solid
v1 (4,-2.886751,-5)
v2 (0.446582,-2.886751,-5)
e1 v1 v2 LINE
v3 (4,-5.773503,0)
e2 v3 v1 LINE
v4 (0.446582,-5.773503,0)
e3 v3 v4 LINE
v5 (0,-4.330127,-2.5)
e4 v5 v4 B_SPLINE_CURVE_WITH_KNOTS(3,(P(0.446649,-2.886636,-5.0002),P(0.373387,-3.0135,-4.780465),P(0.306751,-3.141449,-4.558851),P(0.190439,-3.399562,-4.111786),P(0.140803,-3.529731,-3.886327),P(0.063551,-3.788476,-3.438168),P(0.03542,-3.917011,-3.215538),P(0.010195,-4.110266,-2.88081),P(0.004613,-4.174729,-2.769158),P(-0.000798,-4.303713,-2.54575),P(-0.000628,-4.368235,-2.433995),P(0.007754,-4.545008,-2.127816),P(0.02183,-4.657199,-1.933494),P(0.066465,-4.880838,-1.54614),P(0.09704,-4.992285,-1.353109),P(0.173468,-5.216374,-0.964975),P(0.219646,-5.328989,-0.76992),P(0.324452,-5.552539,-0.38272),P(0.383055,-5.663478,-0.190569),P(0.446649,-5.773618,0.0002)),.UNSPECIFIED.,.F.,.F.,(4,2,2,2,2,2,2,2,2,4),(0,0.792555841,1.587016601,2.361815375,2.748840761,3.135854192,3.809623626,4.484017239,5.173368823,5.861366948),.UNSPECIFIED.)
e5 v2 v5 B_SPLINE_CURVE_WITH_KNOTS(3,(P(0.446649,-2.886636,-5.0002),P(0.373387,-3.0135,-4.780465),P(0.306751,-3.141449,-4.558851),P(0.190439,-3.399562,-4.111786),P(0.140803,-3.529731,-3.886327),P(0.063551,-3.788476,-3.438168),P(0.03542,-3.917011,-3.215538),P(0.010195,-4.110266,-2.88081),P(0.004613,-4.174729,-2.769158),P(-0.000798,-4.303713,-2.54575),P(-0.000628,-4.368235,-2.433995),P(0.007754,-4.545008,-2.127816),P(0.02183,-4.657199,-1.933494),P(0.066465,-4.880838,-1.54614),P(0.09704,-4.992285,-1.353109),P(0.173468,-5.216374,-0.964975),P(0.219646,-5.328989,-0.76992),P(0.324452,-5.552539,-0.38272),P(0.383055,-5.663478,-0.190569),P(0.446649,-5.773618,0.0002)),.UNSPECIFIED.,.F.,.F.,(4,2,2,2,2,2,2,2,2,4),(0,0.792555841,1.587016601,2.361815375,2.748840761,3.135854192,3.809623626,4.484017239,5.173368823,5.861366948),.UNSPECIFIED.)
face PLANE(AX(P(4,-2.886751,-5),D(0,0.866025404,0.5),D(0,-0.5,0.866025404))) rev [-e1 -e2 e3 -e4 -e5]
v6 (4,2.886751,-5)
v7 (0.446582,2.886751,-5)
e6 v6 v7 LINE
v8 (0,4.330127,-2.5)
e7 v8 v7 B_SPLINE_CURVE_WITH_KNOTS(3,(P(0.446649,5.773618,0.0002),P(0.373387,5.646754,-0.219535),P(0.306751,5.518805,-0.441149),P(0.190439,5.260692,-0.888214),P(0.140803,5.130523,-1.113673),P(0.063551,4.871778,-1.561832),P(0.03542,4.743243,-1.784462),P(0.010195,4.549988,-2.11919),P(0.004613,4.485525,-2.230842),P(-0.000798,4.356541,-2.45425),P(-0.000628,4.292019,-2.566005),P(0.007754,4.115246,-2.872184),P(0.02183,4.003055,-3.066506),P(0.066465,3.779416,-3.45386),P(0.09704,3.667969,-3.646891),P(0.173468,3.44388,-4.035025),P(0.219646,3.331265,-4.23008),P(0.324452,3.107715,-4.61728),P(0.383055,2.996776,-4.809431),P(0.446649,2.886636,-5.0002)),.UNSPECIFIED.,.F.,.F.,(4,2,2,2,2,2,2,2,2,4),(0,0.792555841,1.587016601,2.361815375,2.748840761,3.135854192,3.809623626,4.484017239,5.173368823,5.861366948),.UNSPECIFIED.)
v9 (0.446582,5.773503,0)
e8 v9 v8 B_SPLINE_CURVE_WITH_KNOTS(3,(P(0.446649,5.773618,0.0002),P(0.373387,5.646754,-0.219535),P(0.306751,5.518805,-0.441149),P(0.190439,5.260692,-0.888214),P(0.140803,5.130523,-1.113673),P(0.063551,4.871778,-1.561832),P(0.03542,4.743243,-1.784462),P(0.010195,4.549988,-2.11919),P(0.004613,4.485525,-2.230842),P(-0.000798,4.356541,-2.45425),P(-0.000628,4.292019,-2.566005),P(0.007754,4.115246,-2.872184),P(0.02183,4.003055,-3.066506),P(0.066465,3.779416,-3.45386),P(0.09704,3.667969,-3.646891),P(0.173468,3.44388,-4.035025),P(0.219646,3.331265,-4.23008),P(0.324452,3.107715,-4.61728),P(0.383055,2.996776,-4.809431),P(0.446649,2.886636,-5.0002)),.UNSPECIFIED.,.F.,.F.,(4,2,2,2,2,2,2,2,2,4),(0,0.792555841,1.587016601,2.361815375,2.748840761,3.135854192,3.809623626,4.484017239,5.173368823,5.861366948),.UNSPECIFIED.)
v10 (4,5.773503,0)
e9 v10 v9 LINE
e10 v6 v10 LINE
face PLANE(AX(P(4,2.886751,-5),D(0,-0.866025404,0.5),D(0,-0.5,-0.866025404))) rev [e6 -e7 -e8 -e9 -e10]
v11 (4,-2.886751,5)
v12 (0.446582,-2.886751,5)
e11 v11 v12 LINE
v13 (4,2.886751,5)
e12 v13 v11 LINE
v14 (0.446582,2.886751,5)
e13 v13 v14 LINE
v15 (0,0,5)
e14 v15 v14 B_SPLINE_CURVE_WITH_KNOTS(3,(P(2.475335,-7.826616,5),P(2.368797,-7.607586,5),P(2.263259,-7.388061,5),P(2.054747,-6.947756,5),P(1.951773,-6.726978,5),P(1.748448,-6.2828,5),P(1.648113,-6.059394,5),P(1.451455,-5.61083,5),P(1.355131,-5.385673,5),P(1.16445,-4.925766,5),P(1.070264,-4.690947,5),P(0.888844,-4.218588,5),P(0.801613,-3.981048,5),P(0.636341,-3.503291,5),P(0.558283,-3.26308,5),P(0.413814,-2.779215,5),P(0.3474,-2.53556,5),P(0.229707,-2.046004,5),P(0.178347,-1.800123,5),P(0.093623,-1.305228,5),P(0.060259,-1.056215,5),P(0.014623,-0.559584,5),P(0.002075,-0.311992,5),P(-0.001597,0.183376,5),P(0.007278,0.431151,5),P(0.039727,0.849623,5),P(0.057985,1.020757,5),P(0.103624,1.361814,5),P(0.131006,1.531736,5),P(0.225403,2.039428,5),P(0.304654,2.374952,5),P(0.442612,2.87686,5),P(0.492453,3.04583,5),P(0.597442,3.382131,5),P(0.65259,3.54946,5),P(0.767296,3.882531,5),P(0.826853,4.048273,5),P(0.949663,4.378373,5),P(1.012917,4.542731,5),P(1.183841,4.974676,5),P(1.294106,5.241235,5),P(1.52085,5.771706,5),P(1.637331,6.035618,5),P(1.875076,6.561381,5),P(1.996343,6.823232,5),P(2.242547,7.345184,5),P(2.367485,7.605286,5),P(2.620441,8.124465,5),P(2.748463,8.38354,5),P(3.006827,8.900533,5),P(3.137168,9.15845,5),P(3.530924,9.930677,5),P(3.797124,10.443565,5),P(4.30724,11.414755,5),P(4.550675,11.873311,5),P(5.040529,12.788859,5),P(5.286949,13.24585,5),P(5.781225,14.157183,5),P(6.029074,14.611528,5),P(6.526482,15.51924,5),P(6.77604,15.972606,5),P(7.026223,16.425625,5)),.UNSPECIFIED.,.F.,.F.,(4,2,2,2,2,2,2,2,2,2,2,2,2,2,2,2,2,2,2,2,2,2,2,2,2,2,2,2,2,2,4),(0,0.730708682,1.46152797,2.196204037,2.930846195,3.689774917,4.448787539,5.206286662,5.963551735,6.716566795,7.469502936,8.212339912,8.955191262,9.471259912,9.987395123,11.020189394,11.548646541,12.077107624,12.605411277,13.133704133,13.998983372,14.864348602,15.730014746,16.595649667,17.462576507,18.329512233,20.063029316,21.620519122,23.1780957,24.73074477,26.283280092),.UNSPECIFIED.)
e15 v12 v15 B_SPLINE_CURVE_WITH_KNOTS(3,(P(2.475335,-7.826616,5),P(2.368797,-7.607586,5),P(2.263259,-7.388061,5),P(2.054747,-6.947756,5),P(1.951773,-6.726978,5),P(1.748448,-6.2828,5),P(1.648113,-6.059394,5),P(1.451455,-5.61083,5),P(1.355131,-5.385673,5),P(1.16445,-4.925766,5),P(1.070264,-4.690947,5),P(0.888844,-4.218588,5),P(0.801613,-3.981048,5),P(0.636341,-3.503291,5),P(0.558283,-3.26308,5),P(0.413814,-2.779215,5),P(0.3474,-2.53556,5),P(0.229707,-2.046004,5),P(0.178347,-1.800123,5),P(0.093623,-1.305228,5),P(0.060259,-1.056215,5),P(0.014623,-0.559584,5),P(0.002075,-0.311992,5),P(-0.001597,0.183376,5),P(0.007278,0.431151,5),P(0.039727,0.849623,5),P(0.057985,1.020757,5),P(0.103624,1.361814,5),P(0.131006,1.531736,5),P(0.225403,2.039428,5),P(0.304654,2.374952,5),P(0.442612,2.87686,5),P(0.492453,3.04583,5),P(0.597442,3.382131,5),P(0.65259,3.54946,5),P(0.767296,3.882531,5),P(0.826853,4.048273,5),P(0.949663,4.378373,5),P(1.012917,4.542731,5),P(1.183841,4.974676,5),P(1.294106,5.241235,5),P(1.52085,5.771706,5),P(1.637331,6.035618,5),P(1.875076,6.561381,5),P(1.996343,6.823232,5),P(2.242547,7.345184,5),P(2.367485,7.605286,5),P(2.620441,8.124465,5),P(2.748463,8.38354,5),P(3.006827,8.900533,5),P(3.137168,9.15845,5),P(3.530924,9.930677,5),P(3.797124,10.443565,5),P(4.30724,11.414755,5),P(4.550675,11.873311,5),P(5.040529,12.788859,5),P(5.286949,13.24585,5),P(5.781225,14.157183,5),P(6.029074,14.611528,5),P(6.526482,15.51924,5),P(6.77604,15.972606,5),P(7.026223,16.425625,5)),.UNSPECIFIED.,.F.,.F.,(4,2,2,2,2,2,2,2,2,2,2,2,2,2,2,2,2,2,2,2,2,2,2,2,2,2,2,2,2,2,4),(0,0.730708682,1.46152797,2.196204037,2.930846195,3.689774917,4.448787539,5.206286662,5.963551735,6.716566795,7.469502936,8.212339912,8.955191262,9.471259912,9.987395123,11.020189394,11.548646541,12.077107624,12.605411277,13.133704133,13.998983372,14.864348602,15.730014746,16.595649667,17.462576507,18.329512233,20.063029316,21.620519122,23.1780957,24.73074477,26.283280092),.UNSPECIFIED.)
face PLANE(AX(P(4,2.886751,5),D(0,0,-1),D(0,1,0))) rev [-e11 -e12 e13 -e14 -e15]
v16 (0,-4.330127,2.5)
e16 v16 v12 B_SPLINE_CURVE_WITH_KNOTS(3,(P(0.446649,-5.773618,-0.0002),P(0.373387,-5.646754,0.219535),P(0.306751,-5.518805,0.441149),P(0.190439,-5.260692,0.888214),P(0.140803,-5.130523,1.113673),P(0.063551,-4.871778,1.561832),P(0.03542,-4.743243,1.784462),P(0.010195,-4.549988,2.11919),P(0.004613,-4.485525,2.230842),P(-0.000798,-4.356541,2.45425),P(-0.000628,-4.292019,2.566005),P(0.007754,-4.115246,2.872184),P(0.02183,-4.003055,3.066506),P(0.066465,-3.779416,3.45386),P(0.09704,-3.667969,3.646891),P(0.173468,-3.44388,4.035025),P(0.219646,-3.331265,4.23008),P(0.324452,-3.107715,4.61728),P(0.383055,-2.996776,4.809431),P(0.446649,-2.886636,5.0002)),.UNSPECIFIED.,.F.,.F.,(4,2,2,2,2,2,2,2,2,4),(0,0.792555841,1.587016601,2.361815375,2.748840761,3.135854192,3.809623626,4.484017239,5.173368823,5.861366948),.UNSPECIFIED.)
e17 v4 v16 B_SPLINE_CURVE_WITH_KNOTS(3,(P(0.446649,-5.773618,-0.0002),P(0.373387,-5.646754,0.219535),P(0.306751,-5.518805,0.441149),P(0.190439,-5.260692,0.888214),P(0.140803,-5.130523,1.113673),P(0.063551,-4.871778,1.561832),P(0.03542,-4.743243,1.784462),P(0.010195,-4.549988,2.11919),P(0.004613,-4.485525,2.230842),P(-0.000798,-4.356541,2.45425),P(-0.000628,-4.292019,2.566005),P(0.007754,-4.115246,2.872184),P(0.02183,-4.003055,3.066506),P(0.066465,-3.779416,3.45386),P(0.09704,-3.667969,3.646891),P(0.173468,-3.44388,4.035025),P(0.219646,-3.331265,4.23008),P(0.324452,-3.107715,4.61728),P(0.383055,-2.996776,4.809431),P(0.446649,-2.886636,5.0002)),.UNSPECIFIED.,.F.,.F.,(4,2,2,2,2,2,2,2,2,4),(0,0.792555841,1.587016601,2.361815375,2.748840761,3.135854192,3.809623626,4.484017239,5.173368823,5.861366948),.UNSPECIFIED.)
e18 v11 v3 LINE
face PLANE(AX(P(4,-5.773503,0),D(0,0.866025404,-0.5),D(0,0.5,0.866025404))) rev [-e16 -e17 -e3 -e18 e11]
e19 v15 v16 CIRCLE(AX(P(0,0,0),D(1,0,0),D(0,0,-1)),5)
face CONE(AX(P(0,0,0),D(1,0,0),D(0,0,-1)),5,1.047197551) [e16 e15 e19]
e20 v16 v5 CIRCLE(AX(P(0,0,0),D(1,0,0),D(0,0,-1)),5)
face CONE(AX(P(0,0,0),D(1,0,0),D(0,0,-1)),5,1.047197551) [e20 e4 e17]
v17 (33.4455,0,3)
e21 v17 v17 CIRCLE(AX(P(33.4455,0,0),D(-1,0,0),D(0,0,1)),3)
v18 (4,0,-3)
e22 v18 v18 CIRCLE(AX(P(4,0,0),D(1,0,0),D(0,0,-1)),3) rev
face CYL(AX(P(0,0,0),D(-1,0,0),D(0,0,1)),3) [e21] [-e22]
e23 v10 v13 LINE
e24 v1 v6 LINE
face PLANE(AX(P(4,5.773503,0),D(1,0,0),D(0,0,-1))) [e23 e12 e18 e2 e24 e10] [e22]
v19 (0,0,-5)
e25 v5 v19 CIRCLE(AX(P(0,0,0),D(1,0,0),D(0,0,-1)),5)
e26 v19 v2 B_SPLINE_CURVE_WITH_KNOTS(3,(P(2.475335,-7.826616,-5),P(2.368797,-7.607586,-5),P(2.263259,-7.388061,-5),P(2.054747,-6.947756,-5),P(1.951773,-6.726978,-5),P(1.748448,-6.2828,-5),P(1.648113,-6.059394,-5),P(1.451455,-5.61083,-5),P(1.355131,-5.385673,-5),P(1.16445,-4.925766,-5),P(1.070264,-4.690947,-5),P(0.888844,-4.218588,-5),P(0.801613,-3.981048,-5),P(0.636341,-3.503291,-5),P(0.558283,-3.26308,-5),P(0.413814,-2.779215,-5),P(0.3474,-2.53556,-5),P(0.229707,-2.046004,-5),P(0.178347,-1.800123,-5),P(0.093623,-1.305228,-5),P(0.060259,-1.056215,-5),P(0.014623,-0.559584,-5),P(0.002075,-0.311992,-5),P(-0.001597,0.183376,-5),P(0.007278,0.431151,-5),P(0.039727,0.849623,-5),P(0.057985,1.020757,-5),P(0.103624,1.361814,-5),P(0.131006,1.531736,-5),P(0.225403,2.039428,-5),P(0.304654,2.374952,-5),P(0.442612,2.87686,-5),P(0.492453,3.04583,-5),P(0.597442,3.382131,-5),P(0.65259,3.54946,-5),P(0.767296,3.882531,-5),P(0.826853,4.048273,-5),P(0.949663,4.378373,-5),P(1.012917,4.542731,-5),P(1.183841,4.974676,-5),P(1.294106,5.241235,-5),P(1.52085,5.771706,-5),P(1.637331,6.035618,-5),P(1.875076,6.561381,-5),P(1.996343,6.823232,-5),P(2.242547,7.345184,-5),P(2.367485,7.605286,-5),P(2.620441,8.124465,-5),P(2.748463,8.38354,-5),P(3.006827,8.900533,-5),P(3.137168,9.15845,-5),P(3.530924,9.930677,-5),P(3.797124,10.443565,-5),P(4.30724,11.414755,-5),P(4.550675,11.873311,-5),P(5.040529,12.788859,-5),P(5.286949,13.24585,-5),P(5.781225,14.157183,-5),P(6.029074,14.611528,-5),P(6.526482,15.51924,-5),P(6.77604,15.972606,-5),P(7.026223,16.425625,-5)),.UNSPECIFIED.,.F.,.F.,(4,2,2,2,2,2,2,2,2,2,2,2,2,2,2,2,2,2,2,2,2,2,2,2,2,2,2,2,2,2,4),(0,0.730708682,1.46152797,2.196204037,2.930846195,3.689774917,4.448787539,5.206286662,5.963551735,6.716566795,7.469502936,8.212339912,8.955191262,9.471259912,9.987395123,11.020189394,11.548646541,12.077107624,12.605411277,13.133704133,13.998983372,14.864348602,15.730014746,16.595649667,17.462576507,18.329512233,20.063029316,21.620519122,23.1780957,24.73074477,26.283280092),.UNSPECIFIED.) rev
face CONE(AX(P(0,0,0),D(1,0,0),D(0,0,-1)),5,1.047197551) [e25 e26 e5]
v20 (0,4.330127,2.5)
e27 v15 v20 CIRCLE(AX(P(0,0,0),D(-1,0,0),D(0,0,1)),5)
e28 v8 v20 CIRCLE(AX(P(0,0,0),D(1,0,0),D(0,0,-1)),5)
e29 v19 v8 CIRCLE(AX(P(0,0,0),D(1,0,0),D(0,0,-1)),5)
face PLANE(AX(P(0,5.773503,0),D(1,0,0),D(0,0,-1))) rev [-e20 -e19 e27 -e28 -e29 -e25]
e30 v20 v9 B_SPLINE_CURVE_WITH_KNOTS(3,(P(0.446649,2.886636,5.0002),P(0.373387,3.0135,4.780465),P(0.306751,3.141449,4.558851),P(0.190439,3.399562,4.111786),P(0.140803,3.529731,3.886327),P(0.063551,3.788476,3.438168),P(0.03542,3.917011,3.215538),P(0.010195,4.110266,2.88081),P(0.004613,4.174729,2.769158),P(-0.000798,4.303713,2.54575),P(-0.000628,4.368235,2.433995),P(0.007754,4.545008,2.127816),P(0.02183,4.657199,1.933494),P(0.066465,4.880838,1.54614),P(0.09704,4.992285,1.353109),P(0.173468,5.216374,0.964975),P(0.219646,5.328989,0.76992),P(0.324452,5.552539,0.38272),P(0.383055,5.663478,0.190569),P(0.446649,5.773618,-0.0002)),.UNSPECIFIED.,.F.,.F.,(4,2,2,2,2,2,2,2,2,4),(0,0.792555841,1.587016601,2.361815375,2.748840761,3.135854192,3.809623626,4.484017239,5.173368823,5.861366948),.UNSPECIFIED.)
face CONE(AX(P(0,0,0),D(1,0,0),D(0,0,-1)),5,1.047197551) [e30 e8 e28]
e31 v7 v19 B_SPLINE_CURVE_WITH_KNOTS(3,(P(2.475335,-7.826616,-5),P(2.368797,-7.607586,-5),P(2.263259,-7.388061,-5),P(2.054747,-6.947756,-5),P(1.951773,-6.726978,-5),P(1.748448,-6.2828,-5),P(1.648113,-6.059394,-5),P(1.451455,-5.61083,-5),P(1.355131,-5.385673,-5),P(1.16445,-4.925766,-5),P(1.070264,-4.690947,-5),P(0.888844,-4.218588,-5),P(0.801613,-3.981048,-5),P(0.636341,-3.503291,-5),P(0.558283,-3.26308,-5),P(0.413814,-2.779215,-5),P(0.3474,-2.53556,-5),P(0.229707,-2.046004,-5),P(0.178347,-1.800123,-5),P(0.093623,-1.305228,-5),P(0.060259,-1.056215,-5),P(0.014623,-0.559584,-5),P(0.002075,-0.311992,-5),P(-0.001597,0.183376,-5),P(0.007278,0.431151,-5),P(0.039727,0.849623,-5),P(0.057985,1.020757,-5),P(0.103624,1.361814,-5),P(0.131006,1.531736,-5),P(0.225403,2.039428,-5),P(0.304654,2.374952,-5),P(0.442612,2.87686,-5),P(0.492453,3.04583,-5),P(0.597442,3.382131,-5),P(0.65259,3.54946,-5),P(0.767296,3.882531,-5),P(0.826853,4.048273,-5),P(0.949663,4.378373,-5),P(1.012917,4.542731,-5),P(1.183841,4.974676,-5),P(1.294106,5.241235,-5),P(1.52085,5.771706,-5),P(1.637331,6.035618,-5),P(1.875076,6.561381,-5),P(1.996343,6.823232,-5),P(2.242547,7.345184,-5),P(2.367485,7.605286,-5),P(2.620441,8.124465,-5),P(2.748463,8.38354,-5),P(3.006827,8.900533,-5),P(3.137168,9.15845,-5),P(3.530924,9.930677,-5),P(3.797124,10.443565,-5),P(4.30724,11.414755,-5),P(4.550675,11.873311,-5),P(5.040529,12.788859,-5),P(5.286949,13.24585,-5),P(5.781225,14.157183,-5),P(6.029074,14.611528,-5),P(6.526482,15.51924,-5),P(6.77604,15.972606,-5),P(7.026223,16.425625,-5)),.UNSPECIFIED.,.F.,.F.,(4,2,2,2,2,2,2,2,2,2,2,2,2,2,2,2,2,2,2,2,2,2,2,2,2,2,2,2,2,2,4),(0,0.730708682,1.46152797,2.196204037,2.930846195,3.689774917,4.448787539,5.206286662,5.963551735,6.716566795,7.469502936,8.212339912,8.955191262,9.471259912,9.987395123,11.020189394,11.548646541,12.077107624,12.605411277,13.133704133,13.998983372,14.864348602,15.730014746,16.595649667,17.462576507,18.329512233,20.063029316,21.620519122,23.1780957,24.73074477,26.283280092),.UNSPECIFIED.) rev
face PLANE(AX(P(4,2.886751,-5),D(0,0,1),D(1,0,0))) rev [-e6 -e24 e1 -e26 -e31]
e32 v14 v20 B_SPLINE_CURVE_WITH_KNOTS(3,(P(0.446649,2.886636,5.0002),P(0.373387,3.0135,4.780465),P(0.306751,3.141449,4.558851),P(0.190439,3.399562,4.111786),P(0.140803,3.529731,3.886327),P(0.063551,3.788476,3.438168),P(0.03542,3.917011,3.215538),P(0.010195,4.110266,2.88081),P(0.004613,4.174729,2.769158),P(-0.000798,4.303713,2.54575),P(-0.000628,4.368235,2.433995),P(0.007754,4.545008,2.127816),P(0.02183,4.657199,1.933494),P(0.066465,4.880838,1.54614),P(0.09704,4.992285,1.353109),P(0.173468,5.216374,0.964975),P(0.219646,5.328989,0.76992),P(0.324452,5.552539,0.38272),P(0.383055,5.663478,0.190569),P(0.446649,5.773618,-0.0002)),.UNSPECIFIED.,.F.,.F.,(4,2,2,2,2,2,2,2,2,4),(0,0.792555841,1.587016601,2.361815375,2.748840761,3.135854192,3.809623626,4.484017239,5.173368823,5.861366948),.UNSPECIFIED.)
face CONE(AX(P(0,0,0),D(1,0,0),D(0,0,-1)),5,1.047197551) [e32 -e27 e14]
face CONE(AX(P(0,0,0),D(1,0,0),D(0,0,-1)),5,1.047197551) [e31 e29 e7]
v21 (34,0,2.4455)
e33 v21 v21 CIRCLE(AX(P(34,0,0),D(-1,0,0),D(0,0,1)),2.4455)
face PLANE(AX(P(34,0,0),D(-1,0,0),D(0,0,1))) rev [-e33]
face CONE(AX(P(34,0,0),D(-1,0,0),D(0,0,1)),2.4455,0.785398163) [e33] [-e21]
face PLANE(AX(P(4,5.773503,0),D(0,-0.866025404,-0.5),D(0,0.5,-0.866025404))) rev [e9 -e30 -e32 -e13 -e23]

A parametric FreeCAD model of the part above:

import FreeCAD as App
import Part
import Sketcher

V = App.Vector
Q = App.Units.Quantity


def add_polygon(sketch, points):
    """Adds a closed chain of lines whose ends are joined by coincident constraints."""
    first, n = sketch.GeometryCount, len(points)
    for a, b in zip(points, points[1:] + points[:1]):
        sketch.addGeometry(Part.LineSegment(App.Vector(*a, 0), App.Vector(*b, 0)), False)
    for i in range(n):
        sketch.addConstraint(Sketcher.Constraint("Coincident", first + i, 2, first + (i + 1) % n, 1))

doc = App.newDocument("Part")
body = doc.addObject("PartDesign::Body", "Body")

sketch1 = body.newObject("Sketcher::SketchObject", "Sketch")
sketch1.AttachmentSupport = (doc.getObject("YZ_Plane"), [""])
sketch1.MapMode = "FlatFace"
add_polygon(sketch1, [(-2.886751, -5), (2.886751, -5), (5.773503, 0), (2.886751, 5), (-2.886751, 5), (-5.773503, 0)])
sketch1.addConstraint([
    Sketcher.Constraint("Horizontal", 0),
    Sketcher.Constraint("Horizontal", 3),
    Sketcher.Constraint("Symmetric", 0, 2, 3, 2, -1, 1),
    Sketcher.Constraint("Symmetric", 1, 2, 4, 2, -1, 1),
    Sketcher.Constraint("PointOnObject", 1, 2, -1),
    Sketcher.Constraint("Parallel", 2, 5),
    Sketcher.Constraint("Vertical", 0, 2, 2, 2),
    Sketcher.Constraint("Angle", 1, Q("60 deg")),
    Sketcher.Constraint("DistanceY", 0, 2, -1, 1, 5.0),
    Sketcher.Constraint("DistanceX", 0, 1, 0, 2, 5.773503),
])
pad1 = body.newObject("PartDesign::Pad", "Pad")
pad1.Profile = sketch1
pad1.Length = 4

sketch2 = body.newObject("Sketcher::SketchObject", "Sketch001")
sketch2.AttachmentSupport = (doc.getObject("XY_Plane"), [""])
sketch2.MapMode = "FlatFace"
add_polygon(sketch2, [(0, 0), (34, 0), (34, 2.4455), (33.4455, 3), (0, 3)])
sketch2.addConstraint([
    Sketcher.Constraint("Horizontal", 0),
    Sketcher.Constraint("Vertical", 1),
    Sketcher.Constraint("Horizontal", 3),
    Sketcher.Constraint("Vertical", 4),
    Sketcher.Constraint("Coincident", 4, 2, -1, 1),
    Sketcher.Constraint("DistanceX", 0, 1, 0, 2, 34.0),
    Sketcher.Constraint("DistanceY", 4, 2, 4, 1, 3.0),
    Sketcher.Constraint("Angle", 2, Q("135 deg")),
    Sketcher.Constraint("DistanceX", 3, 2, 3, 1, 33.4455),
])
revolution = body.newObject("PartDesign::Revolution", "Revolution")
revolution.Profile = sketch2
revolution.ReferenceAxis = (sketch2, ["H_Axis"])
revolution.Angle = 360

sketch3 = body.newObject("Sketcher::SketchObject", "Sketch002")
sketch3.AttachmentSupport = (doc.getObject("XY_Plane"), [""])
sketch3.MapMode = "FlatFace"
add_polygon(sketch3, [(0, 5), (3.333333, 10.773503), (3.333333, 15.773503), (-10, 15.773503), (-10, 5)])
sketch3.addConstraint([
    Sketcher.Constraint("Vertical", 1),
    Sketcher.Constraint("Horizontal", 2),
    Sketcher.Constraint("Vertical", 3),
    Sketcher.Constraint("Horizontal", 4),
    Sketcher.Constraint("PointOnObject", 4, 2, -2),
    Sketcher.Constraint("DistanceX", 4, 1, 4, 2, 10.0),
    Sketcher.Constraint("DistanceY", 1, 1, 1, 2, 5.0),
    Sketcher.Constraint("Angle", 0, Q("60 deg")),
    Sketcher.Constraint("DistanceY", -1, 1, 3, 2, 5.0),
    Sketcher.Constraint("DistanceX", 2, 2, 2, 1, 13.333333),
])
groove = body.newObject("PartDesign::Groove", "Groove")
groove.Profile = sketch3
groove.ReferenceAxis = (sketch3, ["H_Axis"])
groove.Angle = 360

doc.recompute()
